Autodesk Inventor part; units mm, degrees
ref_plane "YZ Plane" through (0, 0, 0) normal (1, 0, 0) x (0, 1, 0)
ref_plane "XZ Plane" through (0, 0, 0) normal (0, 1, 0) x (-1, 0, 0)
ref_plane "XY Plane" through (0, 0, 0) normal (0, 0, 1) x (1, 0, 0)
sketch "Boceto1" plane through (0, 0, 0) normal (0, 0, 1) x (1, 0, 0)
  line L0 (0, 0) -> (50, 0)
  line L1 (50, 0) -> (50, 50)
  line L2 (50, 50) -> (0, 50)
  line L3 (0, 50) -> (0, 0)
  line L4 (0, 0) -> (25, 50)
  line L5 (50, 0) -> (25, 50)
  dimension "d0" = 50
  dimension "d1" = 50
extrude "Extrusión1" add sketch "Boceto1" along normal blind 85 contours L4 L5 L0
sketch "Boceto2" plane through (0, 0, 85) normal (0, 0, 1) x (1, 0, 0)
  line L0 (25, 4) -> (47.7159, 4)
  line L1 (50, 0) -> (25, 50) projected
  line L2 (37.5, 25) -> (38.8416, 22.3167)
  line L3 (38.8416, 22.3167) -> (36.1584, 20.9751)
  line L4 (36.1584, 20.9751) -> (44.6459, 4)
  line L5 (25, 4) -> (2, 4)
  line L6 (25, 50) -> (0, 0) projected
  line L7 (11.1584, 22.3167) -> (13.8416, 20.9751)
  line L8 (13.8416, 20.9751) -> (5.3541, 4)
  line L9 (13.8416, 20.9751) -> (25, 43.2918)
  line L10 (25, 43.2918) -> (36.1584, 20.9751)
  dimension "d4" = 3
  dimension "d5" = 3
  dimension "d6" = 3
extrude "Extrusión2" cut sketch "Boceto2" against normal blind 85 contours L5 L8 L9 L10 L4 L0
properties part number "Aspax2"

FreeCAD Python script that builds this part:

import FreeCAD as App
import Part
import Sketcher
from FreeCAD import Vector
Q = App.Units.Quantity


def add_polygon(sketch, points):
    """Adds a closed chain of lines whose ends are joined by coincident constraints."""
    first, n = sketch.GeometryCount, len(points)
    for a, b in zip(points, points[1:] + points[:1]):
        sketch.addGeometry(Part.LineSegment(App.Vector(*a, 0), App.Vector(*b, 0)), False)
    for i in range(n):
        sketch.addConstraint(Sketcher.Constraint("Coincident", first + i, 2, first + (i + 1) % n, 1))

doc = App.newDocument("Part")
body = doc.addObject("PartDesign::Body", "Body")

sketch1 = doc.addObject("Sketcher::SketchObject", "Sketch")
body.addObject(sketch1)
sketch1.AttachmentSupport = (doc.XY_Plane, [""])
sketch1.MapMode = "FlatFace"
add_polygon(sketch1, [(25, 50), (0, 0), (50, 0)])
sketch1.addConstraint([
    Sketcher.Constraint("Horizontal", 1),
    Sketcher.Constraint("Coincident", 0, 2, -1, 1),
    Sketcher.Constraint("Equal", 0, 2),
    Sketcher.Constraint("DistanceX", 1, 1, 1, 2, Q("50 mm")),
    Sketcher.Constraint("DistanceY", -1, 1, 2, 2, Q("50 mm")),
])
pad1 = doc.addObject("PartDesign::Pad", "Pad")
body.addObject(pad1)
pad1.Profile = sketch1
pad1.Length = 85

sketch2 = doc.addObject("Sketcher::SketchObject", "Sketch001")
body.addObject(sketch2)
sketch2.AttachmentSupport = (doc.XY_Plane, [""])
sketch2.MapMode = "FlatFace"
sketch2.AttachmentOffset = App.Placement(Vector(0, 0, 85), App.Rotation())
add_polygon(sketch2, [(5.3541, 4), (44.6459, 4), (36.1584, 20.9751), (25, 43.2918), (13.8416, 20.9751)])
sketch2.addConstraint([
    Sketcher.Constraint("Horizontal", 0),
    Sketcher.Constraint("Parallel", 1, 2),
    Sketcher.Constraint("Parallel", 3, 4),
    Sketcher.Constraint("Horizontal", 1, 2, 3, 2),
    Sketcher.Constraint("Equal", 2, 3),
    Sketcher.Constraint("DistanceY", -1, 1, 0, 2, Q("4 mm")),
    Sketcher.Constraint("DistanceX", -1, 1, 2, 2, Q("25 mm")),
    Sketcher.Constraint("DistanceX", 0, 1, 0, 2, Q("39.2918 mm")),
    Sketcher.Constraint("DistanceY", -1, 1, 1, 2, Q("20.975 mm")),
    Sketcher.Constraint("Distance", 1, Q("18.9787 mm")),
])
pocket1 = doc.addObject("PartDesign::Pocket", "Pocket")
body.addObject(pocket1)
pocket1.Profile = sketch2
pocket1.Length = 85

doc.recompute()
